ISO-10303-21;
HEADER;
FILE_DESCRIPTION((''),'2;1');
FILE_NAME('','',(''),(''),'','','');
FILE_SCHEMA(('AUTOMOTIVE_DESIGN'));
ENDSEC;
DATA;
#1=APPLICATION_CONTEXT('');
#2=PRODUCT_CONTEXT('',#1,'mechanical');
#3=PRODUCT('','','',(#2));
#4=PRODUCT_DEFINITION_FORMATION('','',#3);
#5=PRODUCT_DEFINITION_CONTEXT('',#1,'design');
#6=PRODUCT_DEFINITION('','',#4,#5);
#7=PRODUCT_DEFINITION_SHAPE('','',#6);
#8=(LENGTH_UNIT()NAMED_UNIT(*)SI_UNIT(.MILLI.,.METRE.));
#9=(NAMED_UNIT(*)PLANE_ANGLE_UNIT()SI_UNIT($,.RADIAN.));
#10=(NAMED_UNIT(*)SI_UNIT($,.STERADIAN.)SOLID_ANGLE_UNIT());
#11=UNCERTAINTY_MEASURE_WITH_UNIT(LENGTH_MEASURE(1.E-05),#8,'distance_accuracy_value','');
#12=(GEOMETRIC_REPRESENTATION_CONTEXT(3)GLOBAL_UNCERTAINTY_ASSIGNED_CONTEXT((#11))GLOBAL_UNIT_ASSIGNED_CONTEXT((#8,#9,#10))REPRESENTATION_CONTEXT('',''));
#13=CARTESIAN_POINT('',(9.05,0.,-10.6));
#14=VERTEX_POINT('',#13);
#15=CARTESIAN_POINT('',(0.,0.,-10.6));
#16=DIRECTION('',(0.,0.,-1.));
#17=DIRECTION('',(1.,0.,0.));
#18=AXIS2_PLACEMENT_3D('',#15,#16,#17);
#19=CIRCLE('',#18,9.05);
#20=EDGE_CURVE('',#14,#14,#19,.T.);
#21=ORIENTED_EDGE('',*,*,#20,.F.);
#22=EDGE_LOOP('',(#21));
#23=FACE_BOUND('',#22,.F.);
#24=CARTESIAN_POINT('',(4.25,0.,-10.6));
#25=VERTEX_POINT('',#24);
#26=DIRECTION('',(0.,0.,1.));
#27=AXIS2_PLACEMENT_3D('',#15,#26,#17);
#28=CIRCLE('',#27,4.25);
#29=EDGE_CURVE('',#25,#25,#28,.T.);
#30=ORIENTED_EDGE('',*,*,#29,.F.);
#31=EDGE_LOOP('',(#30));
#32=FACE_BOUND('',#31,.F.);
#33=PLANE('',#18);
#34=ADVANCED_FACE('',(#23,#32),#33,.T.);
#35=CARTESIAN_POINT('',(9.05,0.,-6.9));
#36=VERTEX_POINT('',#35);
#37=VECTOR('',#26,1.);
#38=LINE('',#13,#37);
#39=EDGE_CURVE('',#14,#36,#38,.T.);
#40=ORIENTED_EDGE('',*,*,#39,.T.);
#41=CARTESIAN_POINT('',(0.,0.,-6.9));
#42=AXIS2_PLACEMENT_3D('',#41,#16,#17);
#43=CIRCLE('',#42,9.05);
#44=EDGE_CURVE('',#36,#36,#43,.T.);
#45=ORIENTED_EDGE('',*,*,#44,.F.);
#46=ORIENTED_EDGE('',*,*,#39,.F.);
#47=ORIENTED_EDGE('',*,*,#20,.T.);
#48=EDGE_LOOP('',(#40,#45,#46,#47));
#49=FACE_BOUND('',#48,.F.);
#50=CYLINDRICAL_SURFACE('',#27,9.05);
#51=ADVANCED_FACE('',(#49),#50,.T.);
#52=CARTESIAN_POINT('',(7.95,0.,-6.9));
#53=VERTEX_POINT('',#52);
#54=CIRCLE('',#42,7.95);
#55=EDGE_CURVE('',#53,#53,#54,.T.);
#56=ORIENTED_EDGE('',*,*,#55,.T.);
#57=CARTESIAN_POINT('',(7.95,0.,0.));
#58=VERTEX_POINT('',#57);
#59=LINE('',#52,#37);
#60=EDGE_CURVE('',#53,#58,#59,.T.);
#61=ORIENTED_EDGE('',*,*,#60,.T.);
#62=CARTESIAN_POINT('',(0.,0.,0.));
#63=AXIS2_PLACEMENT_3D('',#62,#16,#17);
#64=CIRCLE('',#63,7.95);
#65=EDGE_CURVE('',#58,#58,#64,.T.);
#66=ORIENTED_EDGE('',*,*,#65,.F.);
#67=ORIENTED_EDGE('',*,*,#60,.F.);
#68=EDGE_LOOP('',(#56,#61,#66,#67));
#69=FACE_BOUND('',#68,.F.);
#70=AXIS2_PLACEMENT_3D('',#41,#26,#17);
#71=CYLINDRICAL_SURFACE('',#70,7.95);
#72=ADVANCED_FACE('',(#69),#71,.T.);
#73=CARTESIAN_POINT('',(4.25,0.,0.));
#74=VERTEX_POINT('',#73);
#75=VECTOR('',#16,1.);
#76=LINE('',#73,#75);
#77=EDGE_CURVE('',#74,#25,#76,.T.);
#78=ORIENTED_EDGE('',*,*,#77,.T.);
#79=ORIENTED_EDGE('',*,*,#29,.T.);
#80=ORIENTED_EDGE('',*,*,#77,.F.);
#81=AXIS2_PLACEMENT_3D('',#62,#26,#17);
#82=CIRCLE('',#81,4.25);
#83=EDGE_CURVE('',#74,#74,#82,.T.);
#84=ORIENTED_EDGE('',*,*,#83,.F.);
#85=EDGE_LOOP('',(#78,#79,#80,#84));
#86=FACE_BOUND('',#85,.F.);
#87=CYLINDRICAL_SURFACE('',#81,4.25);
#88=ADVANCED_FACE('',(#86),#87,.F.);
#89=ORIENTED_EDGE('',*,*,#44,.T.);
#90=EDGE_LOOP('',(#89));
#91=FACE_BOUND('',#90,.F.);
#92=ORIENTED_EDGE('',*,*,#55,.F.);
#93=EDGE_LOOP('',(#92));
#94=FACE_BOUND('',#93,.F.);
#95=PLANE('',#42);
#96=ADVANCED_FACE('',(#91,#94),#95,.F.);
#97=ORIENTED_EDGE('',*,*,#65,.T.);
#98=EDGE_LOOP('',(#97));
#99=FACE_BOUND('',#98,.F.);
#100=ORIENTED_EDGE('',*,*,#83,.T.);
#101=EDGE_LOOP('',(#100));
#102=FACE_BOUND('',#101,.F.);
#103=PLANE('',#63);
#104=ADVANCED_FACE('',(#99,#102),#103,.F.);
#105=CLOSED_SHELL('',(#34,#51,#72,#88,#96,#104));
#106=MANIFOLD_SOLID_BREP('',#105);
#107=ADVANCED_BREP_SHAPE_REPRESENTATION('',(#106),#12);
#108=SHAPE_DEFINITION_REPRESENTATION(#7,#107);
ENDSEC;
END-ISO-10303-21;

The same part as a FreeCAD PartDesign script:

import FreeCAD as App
import Part
import Sketcher

V = App.Vector
Q = App.Units.Quantity

doc = App.newDocument("Part")
body = doc.addObject("PartDesign::Body", "Body")

# Sketch on XZ plane
sketch1 = body.newObject("Sketcher::SketchObject", "Sketch")
sketch1.AttachmentSupport = (doc.getObject("XZ_Plane"), [""])
sketch1.MapMode = "FlatFace"
sketch1.addGeometry([
    Part.LineSegment(V(7.95, 0, 0), V(0, 0, 0)),  # 0
    Part.LineSegment(V(0, 0, 0), V(0, -10.6, 0)),  # 1
    Part.LineSegment(V(0, -10.6, 0), V(9.05, -10.6, 0)),  # 2
    Part.LineSegment(V(9.05, -10.6, 0), V(9.05, -6.9, 0)),  # 3
    Part.LineSegment(V(9.05, -6.9, 0), V(7.95, -6.9, 0)),  # 4
    Part.LineSegment(V(7.95, -6.9, 0), V(7.95, 0, 0)),  # 5
], False)
sketch1.addConstraint([
    Sketcher.Constraint("Coincident", 0, 2, 1, 1),
    Sketcher.Constraint("Coincident", 1, 2, 2, 1),
    Sketcher.Constraint("Coincident", 2, 2, 3, 1),
    Sketcher.Constraint("Coincident", 3, 2, 4, 1),
    Sketcher.Constraint("Coincident", 4, 2, 5, 1),
    Sketcher.Constraint("Coincident", 5, 2, 0, 1),
    Sketcher.Constraint("Horizontal", 0),
    Sketcher.Constraint("Vertical", 1),
    Sketcher.Constraint("Horizontal", 2),
    Sketcher.Constraint("Vertical", 3),
    Sketcher.Constraint("Horizontal", 4),
    Sketcher.Constraint("Vertical", 5),
    Sketcher.Constraint("Coincident", 0, 2, -1, 1),
    Sketcher.Constraint("DistanceX", 4, 2, 4, 1, Q("1.1 mm")),
    Sketcher.Constraint("DistanceY", 1, 2, 1, 1, Q("10.6 mm")),
    Sketcher.Constraint("DistanceY", 3, 1, 3, 2, Q("3.7 mm")),
    Sketcher.Constraint("DistanceX", 0, 2, 0, 1, Q("7.95 mm")),
])
revolution = body.newObject("PartDesign::Revolution", "Revolution")
revolution.Profile = sketch1
revolution.ReferenceAxis = (sketch1, ["V_Axis"])
revolution.Angle = 360

# Sketch on XY plane
sketch2 = body.newObject("Sketcher::SketchObject", "Sketch001")
sketch2.AttachmentSupport = (doc.getObject("XY_Plane"), [""])
sketch2.MapMode = "FlatFace"
sketch2.addGeometry(Part.Circle(V(0, 0, 0), V(0, 0, 1), 4.25), False)
sketch2.addConstraint([
    Sketcher.Constraint("Coincident", 0, 3, -1, 1),
    Sketcher.Constraint("Diameter", 0, Q("8.5 mm")),
])
pocket1 = body.newObject("PartDesign::Pocket", "Pocket")
pocket1.Profile = sketch2
pocket1.Type = "ThroughAll"

doc.recompute()
